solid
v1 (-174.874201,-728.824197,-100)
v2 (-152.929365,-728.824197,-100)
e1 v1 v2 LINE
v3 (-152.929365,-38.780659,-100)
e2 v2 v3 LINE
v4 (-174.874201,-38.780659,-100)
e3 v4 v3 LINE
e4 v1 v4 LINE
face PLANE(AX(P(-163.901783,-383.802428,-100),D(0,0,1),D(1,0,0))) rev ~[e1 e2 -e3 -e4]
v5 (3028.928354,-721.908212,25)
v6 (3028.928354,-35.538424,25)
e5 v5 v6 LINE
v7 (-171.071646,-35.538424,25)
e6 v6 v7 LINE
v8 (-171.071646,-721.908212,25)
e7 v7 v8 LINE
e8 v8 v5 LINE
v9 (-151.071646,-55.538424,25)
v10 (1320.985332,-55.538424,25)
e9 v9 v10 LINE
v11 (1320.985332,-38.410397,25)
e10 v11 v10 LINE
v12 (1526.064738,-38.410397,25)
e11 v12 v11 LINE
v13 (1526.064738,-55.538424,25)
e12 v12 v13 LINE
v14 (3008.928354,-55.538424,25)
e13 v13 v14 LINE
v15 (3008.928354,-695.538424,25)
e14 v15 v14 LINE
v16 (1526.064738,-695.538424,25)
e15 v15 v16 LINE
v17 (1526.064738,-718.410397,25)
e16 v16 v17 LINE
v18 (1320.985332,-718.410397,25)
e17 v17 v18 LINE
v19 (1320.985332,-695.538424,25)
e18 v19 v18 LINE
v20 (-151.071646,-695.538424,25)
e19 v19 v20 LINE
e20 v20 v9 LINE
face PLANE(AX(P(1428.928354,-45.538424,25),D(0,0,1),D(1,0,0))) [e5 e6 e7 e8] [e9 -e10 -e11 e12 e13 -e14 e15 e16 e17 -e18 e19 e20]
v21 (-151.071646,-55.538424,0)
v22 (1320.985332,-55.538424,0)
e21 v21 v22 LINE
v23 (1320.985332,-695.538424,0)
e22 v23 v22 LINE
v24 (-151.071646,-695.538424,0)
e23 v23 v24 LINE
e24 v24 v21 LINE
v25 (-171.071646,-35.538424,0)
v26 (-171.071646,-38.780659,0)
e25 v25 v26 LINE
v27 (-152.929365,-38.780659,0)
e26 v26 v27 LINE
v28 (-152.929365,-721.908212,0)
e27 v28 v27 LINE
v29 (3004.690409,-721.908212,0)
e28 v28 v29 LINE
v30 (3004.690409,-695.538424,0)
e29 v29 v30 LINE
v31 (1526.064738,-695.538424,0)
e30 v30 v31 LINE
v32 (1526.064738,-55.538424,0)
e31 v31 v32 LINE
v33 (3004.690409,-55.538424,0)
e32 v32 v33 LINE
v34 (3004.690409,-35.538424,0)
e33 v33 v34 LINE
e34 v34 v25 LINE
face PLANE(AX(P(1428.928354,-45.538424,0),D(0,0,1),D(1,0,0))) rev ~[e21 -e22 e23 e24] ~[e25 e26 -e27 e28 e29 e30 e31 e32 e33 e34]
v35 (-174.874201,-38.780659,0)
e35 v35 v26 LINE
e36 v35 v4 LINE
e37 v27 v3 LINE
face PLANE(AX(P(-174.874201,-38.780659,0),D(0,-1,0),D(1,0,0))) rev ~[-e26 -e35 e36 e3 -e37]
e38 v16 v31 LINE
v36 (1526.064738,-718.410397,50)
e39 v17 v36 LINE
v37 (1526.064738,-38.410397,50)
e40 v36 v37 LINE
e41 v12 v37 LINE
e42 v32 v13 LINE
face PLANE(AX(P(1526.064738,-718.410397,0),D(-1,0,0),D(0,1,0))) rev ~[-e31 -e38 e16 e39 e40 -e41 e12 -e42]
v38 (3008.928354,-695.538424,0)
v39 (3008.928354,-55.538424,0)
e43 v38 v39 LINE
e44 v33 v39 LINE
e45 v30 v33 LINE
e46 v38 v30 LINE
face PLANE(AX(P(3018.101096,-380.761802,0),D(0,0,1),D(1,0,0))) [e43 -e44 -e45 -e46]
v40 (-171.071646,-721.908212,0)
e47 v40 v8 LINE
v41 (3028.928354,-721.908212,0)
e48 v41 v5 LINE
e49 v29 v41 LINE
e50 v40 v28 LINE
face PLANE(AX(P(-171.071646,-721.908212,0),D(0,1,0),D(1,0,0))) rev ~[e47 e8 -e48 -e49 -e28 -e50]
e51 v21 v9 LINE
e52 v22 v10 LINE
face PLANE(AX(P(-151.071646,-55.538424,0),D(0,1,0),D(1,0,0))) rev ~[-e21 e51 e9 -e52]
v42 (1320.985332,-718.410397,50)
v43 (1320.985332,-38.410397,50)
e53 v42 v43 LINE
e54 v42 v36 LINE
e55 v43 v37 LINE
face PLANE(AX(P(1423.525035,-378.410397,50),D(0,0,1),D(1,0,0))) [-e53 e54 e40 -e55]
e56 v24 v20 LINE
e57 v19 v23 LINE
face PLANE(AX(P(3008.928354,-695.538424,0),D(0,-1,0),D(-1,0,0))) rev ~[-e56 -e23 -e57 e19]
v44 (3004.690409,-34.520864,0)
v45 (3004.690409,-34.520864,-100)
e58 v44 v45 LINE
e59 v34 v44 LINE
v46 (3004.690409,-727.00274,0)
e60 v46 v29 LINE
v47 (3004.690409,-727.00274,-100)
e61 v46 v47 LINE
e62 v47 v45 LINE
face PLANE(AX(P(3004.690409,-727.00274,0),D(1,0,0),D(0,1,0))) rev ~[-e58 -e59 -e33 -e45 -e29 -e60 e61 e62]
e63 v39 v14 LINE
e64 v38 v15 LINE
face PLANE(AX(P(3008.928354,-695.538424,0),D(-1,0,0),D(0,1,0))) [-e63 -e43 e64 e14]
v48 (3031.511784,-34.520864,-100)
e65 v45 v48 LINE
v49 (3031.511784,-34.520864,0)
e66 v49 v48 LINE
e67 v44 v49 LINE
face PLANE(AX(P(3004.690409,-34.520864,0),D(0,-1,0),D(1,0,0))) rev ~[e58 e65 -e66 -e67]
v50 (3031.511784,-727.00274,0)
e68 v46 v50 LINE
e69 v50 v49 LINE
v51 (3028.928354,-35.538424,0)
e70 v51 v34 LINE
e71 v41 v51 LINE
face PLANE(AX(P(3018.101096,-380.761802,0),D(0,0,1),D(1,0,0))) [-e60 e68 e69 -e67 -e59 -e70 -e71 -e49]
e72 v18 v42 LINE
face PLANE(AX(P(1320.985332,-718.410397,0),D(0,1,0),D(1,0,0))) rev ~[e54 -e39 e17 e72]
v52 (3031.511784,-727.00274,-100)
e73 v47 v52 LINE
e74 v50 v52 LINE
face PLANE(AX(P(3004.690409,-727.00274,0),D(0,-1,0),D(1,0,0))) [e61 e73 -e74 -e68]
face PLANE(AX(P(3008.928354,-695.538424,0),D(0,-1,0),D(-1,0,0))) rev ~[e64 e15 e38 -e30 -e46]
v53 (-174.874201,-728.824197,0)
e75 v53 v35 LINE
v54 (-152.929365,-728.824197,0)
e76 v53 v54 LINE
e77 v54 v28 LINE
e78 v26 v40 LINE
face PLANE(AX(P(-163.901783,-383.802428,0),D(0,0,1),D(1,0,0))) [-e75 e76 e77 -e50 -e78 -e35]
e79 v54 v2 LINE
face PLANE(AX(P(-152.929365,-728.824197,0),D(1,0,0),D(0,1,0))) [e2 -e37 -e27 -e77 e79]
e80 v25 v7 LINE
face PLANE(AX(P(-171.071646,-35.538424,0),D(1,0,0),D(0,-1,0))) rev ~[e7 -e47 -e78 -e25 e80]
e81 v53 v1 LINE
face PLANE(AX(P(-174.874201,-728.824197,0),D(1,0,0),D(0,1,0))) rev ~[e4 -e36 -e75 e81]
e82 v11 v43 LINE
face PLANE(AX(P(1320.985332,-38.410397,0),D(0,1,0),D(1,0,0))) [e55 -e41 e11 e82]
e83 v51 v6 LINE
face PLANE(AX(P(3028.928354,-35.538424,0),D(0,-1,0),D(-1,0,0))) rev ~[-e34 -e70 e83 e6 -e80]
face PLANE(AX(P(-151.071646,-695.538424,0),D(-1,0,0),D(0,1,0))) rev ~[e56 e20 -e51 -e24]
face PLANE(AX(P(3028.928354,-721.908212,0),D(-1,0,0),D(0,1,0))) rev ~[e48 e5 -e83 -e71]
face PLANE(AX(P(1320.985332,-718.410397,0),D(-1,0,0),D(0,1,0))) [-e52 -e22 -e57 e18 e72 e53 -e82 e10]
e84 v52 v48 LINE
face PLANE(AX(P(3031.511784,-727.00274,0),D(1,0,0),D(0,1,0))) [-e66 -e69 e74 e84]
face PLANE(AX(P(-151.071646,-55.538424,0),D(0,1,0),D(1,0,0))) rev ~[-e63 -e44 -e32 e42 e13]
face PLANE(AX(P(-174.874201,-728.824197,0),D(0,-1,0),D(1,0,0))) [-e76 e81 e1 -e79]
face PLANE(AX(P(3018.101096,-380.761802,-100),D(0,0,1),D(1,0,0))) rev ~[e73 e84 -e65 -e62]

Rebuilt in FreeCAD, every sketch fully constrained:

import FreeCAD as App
import Part
import Sketcher

V = App.Vector
Q = App.Units.Quantity

doc = App.newDocument("Part")
body = doc.addObject("PartDesign::Body", "Body")

# Sketch on XY plane
sketch1 = body.newObject("Sketcher::SketchObject", "Sketch")
sketch1.AttachmentSupport = (doc.getObject("XY_Plane"), [""])
sketch1.MapMode = "FlatFace"
sketch1.addGeometry(Part.LineSegment(V(3029, -36, 0), V(-171, -36, 0)), False)
sketch1.addGeometry(Part.LineSegment(V(-171, -36, 0), V(-171, -722, 0)), False)
sketch1.addGeometry(Part.LineSegment(V(-171, -722, 0), V(3029, -722, 0)), False)
sketch1.addGeometry(Part.LineSegment(V(3029, -722, 0), V(3029, -36, 0)), False)
sketch1.addGeometry(Part.LineSegment(V(-151, -696, 0), V(-151, -56, 0)), False)
sketch1.addGeometry(Part.LineSegment(V(-151, -56, 0), V(3009, -56, 0)), False)
sketch1.addGeometry(Part.LineSegment(V(3009, -56, 0), V(3009, -696, 0)), False)
sketch1.addGeometry(Part.LineSegment(V(3009, -696, 0), V(-151, -696, 0)), False)
sketch1.addConstraint(Sketcher.Constraint("Coincident", 0, 2, 1, 1))
sketch1.addConstraint(Sketcher.Constraint("Coincident", 1, 2, 2, 1))
sketch1.addConstraint(Sketcher.Constraint("Coincident", 2, 2, 3, 1))
sketch1.addConstraint(Sketcher.Constraint("Coincident", 3, 2, 0, 1))
sketch1.addConstraint(Sketcher.Constraint("Coincident", 4, 2, 5, 1))
sketch1.addConstraint(Sketcher.Constraint("Coincident", 5, 2, 6, 1))
sketch1.addConstraint(Sketcher.Constraint("Coincident", 6, 2, 7, 1))
sketch1.addConstraint(Sketcher.Constraint("Coincident", 7, 2, 4, 1))
sketch1.addConstraint(Sketcher.Constraint("Horizontal", 0))
sketch1.addConstraint(Sketcher.Constraint("Vertical", 1))
sketch1.addConstraint(Sketcher.Constraint("Horizontal", 2))
sketch1.addConstraint(Sketcher.Constraint("Vertical", 3))
sketch1.addConstraint(Sketcher.Constraint("Vertical", 4))
sketch1.addConstraint(Sketcher.Constraint("Horizontal", 5))
sketch1.addConstraint(Sketcher.Constraint("Vertical", 6))
sketch1.addConstraint(Sketcher.Constraint("Horizontal", 7))
sketch1.addConstraint(Sketcher.Constraint("DistanceX", 0, 2, 0, 1, Q("3200 mm")))
sketch1.addConstraint(Sketcher.Constraint("DistanceX", 5, 1, 5, 2, Q("3160 mm")))
sketch1.addConstraint(Sketcher.Constraint("DistanceY", 4, 1, 4, 2, Q("640 mm")))
sketch1.addConstraint(Sketcher.Constraint("DistanceX", 0, 2, 4, 2, Q("20 mm")))
sketch1.addConstraint(Sketcher.Constraint("DistanceY", 4, 2, 0, 2, Q("20 mm")))
sketch1.addConstraint(Sketcher.Constraint("DistanceY", 1, 2, 1, 1, Q("686.369788 mm")))
sketch1.addConstraint(Sketcher.Constraint("DistanceY", 1, 2, -1, 1, Q("721.908212 mm")))
sketch1.addConstraint(Sketcher.Constraint("DistanceX", 0, 2, -1, 1, Q("171.071646 mm")))
pad1 = body.newObject("PartDesign::Pad", "Pad")
pad1.Profile = sketch1
pad1.Length = 25

# Sketch on XY plane
sketch2 = body.newObject("Sketcher::SketchObject", "Sketch001")
sketch2.AttachmentSupport = (doc.getObject("XY_Plane"), [""])
sketch2.MapMode = "FlatFace"
sketch2.addGeometry(Part.LineSegment(V(1321, -38, 0), V(1321, -718, 0)), False)
sketch2.addGeometry(Part.LineSegment(V(1321, -718, 0), V(1526, -718, 0)), False)
sketch2.addGeometry(Part.LineSegment(V(1526, -718, 0), V(1526, -38, 0)), False)
sketch2.addGeometry(Part.LineSegment(V(1526, -38, 0), V(1321, -38, 0)), False)
sketch2.addConstraint(Sketcher.Constraint("Coincident", 0, 2, 1, 1))
sketch2.addConstraint(Sketcher.Constraint("Coincident", 1, 2, 2, 1))
sketch2.addConstraint(Sketcher.Constraint("Coincident", 2, 2, 3, 1))
sketch2.addConstraint(Sketcher.Constraint("Coincident", 3, 2, 0, 1))
sketch2.addConstraint(Sketcher.Constraint("Vertical", 0))
sketch2.addConstraint(Sketcher.Constraint("Horizontal", 1))
sketch2.addConstraint(Sketcher.Constraint("Vertical", 2))
sketch2.addConstraint(Sketcher.Constraint("Horizontal", 3))
sketch2.addConstraint(Sketcher.Constraint("DistanceY", 0, 2, 0, 1, Q("680 mm")))
sketch2.addConstraint(Sketcher.Constraint("DistanceX", 1, 1, 1, 2, Q("205.079407 mm")))
sketch2.addConstraint(Sketcher.Constraint("DistanceX", -1, 1, 0, 2, Q("1320.985332 mm")))
sketch2.addConstraint(Sketcher.Constraint("DistanceY", 0, 2, -1, 1, Q("718.410397 mm")))
pad2 = body.newObject("PartDesign::Pad", "Pad001")
pad2.Profile = sketch2
pad2.Length = 50

# Sketch on XY plane
sketch3 = body.newObject("Sketcher::SketchObject", "Sketch002")
sketch3.AttachmentSupport = (doc.getObject("XY_Plane"), [""])
sketch3.MapMode = "FlatFace"
sketch3.addGeometry(Part.LineSegment(V(-175, -39, 0), V(-175, -729, 0)), False)
sketch3.addGeometry(Part.LineSegment(V(-175, -729, 0), V(-153, -729, 0)), False)
sketch3.addGeometry(Part.LineSegment(V(-153, -729, 0), V(-153, -39, 0)), False)
sketch3.addGeometry(Part.LineSegment(V(-153, -39, 0), V(-175, -39, 0)), False)
sketch3.addGeometry(Part.LineSegment(V(3005, -35, 0), V(3005, -727, 0)), False)
sketch3.addGeometry(Part.LineSegment(V(3005, -727, 0), V(3032, -727, 0)), False)
sketch3.addGeometry(Part.LineSegment(V(3032, -727, 0), V(3032, -35, 0)), False)
sketch3.addGeometry(Part.LineSegment(V(3032, -35, 0), V(3005, -35, 0)), False)
sketch3.addConstraint(Sketcher.Constraint("Coincident", 0, 2, 1, 1))
sketch3.addConstraint(Sketcher.Constraint("Coincident", 1, 2, 2, 1))
sketch3.addConstraint(Sketcher.Constraint("Coincident", 2, 2, 3, 1))
sketch3.addConstraint(Sketcher.Constraint("Coincident", 3, 2, 0, 1))
sketch3.addConstraint(Sketcher.Constraint("Coincident", 4, 2, 5, 1))
sketch3.addConstraint(Sketcher.Constraint("Coincident", 5, 2, 6, 1))
sketch3.addConstraint(Sketcher.Constraint("Coincident", 6, 2, 7, 1))
sketch3.addConstraint(Sketcher.Constraint("Coincident", 7, 2, 4, 1))
sketch3.addConstraint(Sketcher.Constraint("Vertical", 0))
sketch3.addConstraint(Sketcher.Constraint("Horizontal", 1))
sketch3.addConstraint(Sketcher.Constraint("Vertical", 2))
sketch3.addConstraint(Sketcher.Constraint("Horizontal", 3))
sketch3.addConstraint(Sketcher.Constraint("Vertical", 4))
sketch3.addConstraint(Sketcher.Constraint("Horizontal", 5))
sketch3.addConstraint(Sketcher.Constraint("Vertical", 6))
sketch3.addConstraint(Sketcher.Constraint("Horizontal", 7))
sketch3.addConstraint(Sketcher.Constraint("DistanceY", 0, 2, 0, 1, Q("690.043539 mm")))
sketch3.addConstraint(Sketcher.Constraint("DistanceX", 0, 2, -1, 1, Q("174.874201 mm")))
sketch3.addConstraint(Sketcher.Constraint("DistanceX", 1, 1, 1, 2, Q("21.944835 mm")))
sketch3.addConstraint(Sketcher.Constraint("DistanceX", 5, 1, 5, 2, Q("26.821375 mm")))
sketch3.addConstraint(Sketcher.Constraint("DistanceY", 4, 2, 4, 1, Q("692.481876 mm")))
sketch3.addConstraint(Sketcher.Constraint("DistanceY", 2, 2, -1, 1, Q("38.780659 mm")))
sketch3.addConstraint(Sketcher.Constraint("DistanceX", -1, 1, 4, 2, Q("3004.690409 mm")))
sketch3.addConstraint(Sketcher.Constraint("DistanceY", 4, 2, -1, 1, Q("727.00274 mm")))
pad3 = body.newObject("PartDesign::Pad", "Pad002")
pad3.Profile = sketch3
pad3.Length = 100
pad3.Reversed = True

# Sketch on XY plane
sketch4 = body.newObject("Sketcher::SketchObject", "Sketch003")
sketch4.AttachmentSupport = (doc.getObject("XY_Plane"), [""])
sketch4.MapMode = "FlatFace"
sketch4.addGeometry(Part.LineSegment(V(-175, -39, 0), V(-175, -729, 0)), False)
sketch4.addGeometry(Part.LineSegment(V(-175, -729, 0), V(-153, -729, 0)), False)
sketch4.addGeometry(Part.LineSegment(V(-153, -729, 0), V(-153, -39, 0)), False)
sketch4.addGeometry(Part.LineSegment(V(-153, -39, 0), V(-175, -39, 0)), False)
sketch4.addGeometry(Part.LineSegment(V(3005, -35, 0), V(3005, -727, 0)), False)
sketch4.addGeometry(Part.LineSegment(V(3005, -727, 0), V(3032, -727, 0)), False)
sketch4.addGeometry(Part.LineSegment(V(3032, -727, 0), V(3032, -35, 0)), False)
sketch4.addGeometry(Part.LineSegment(V(3032, -35, 0), V(3005, -35, 0)), False)
sketch4.addConstraint(Sketcher.Constraint("Coincident", 0, 2, 1, 1))
sketch4.addConstraint(Sketcher.Constraint("Coincident", 1, 2, 2, 1))
sketch4.addConstraint(Sketcher.Constraint("Coincident", 2, 2, 3, 1))
sketch4.addConstraint(Sketcher.Constraint("Coincident", 3, 2, 0, 1))
sketch4.addConstraint(Sketcher.Constraint("Coincident", 4, 2, 5, 1))
sketch4.addConstraint(Sketcher.Constraint("Coincident", 5, 2, 6, 1))
sketch4.addConstraint(Sketcher.Constraint("Coincident", 6, 2, 7, 1))
sketch4.addConstraint(Sketcher.Constraint("Coincident", 7, 2, 4, 1))
sketch4.addConstraint(Sketcher.Constraint("Vertical", 0))
sketch4.addConstraint(Sketcher.Constraint("Horizontal", 1))
sketch4.addConstraint(Sketcher.Constraint("Vertical", 2))
sketch4.addConstraint(Sketcher.Constraint("Horizontal", 3))
sketch4.addConstraint(Sketcher.Constraint("Vertical", 4))
sketch4.addConstraint(Sketcher.Constraint("Horizontal", 5))
sketch4.addConstraint(Sketcher.Constraint("Vertical", 6))
sketch4.addConstraint(Sketcher.Constraint("Horizontal", 7))
sketch4.addConstraint(Sketcher.Constraint("DistanceY", 0, 2, 0, 1, Q("690.043539 mm")))
sketch4.addConstraint(Sketcher.Constraint("DistanceX", 0, 2, -1, 1, Q("174.874201 mm")))
sketch4.addConstraint(Sketcher.Constraint("DistanceX", 1, 1, 1, 2, Q("21.944835 mm")))
sketch4.addConstraint(Sketcher.Constraint("DistanceX", 5, 1, 5, 2, Q("26.821375 mm")))
sketch4.addConstraint(Sketcher.Constraint("DistanceY", 4, 2, 4, 1, Q("692.481876 mm")))
sketch4.addConstraint(Sketcher.Constraint("DistanceY", 2, 2, -1, 1, Q("38.780659 mm")))
sketch4.addConstraint(Sketcher.Constraint("DistanceX", -1, 1, 4, 2, Q("3004.690409 mm")))
sketch4.addConstraint(Sketcher.Constraint("DistanceY", 4, 2, -1, 1, Q("727.00274 mm")))
pad4 = body.newObject("PartDesign::Pad", "Pad003")
pad4.Profile = sketch4
pad4.Length = 100
pad4.Reversed = True

doc.recompute()
